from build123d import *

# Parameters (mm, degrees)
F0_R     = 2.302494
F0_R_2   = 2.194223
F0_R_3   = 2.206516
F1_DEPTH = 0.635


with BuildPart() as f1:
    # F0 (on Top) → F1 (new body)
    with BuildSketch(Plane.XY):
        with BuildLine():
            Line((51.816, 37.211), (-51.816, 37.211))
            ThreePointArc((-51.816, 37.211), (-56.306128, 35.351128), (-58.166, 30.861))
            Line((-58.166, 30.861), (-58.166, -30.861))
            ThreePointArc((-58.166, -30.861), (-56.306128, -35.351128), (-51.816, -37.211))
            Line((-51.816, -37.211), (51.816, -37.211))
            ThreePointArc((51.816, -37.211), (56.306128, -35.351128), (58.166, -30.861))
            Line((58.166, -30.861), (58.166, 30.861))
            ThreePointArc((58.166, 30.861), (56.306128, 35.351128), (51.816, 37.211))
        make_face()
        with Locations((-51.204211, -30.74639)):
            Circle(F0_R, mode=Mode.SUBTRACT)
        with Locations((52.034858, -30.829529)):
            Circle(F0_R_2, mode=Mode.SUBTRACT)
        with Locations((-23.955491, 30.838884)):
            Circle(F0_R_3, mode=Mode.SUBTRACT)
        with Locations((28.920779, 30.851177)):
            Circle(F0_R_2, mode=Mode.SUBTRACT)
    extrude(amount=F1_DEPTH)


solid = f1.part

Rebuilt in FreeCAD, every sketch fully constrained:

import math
import FreeCAD as App
import Part
import Sketcher
Q = App.Units.Quantity

doc = App.newDocument("Part")
body = doc.addObject("PartDesign::Body", "Body")

# Sketch on XY plane
sketch1 = body.newObject("Sketcher::SketchObject", "Sketch")
sketch1.AttachmentSupport = (doc.getObject("XY_Plane"), [""])
sketch1.MapMode = "FlatFace"
sketch1.addGeometry([
    Part.LineSegment(App.Vector(51.8, 37.2, 0), App.Vector(-51.8, 37.2, 0)),  # 0
    Part.ArcOfCircle(Part.Circle(App.Vector(-51.8, 30.9, 0), App.Vector(0, 0, 1), 6.4), math.radians(90), math.radians(180)),  # 1
    Part.LineSegment(App.Vector(-58.2, 30.9, 0), App.Vector(-58.2, -30.9, 0)),  # 2
    Part.ArcOfCircle(Part.Circle(App.Vector(-51.8, -30.9, 0), App.Vector(0, 0, 1), 6.4), math.radians(-180), math.radians(-90)),  # 3
    Part.LineSegment(App.Vector(-51.8, -37.2, 0), App.Vector(51.8, -37.2, 0)),  # 4
    Part.ArcOfCircle(Part.Circle(App.Vector(51.8, -30.9, 0), App.Vector(0, 0, 1), 6.4), math.radians(-90), math.radians(0)),  # 5
    Part.LineSegment(App.Vector(58.2, -30.9, 0), App.Vector(58.2, 30.9, 0)),  # 6
    Part.ArcOfCircle(Part.Circle(App.Vector(51.8, 30.9, 0), App.Vector(0, 0, 1), 6.4), math.radians(0), math.radians(90)),  # 7
    Part.Circle(App.Vector(-51.2, -30.7, 0), App.Vector(0, 0, 1), 2.3),  # 8
    Part.Circle(App.Vector(52, -30.8, 0), App.Vector(0, 0, 1), 2.2),  # 9
    Part.Circle(App.Vector(-24, 30.8, 0), App.Vector(0, 0, 1), 2.2),  # 10
    Part.Circle(App.Vector(28.9, 30.9, 0), App.Vector(0, 0, 1), 2.2),  # 11
], False)
sketch1.addConstraint([
    Sketcher.Constraint("Tangent", 0, 2, 1, 1),
    Sketcher.Constraint("Tangent", 1, 2, 2, 1),
    Sketcher.Constraint("Tangent", 2, 2, 3, 1),
    Sketcher.Constraint("Tangent", 3, 2, 4, 1),
    Sketcher.Constraint("Tangent", 4, 2, 5, 1),
    Sketcher.Constraint("Tangent", 5, 2, 6, 1),
    Sketcher.Constraint("Tangent", 6, 2, 7, 1),
    Sketcher.Constraint("Tangent", 7, 2, 0, 1),
    Sketcher.Constraint("Horizontal", 0),
    Sketcher.Constraint("Vertical", 2),
    Sketcher.Constraint("Horizontal", 4),
    Sketcher.Constraint("Vertical", 6),
    Sketcher.Constraint("Equal", 1, 3),
    Sketcher.Constraint("Equal", 3, 5),
    Sketcher.Constraint("Equal", 5, 7),
    Sketcher.Constraint("Equal", 9, 11),
    Sketcher.Constraint("Symmetric", 1, 3, 5, 3, -1, 1),
    Sketcher.Constraint("Radius", 1, Q("0.25 in")),
    Sketcher.Constraint("DistanceX", 0, 2, 0, 1, Q("4.08 in")),
    Sketcher.Constraint("DistanceY", 2, 2, 2, 1, Q("2.43 in")),
    Sketcher.Constraint("Diameter", 8, 4.604988),
    Sketcher.Constraint("Diameter", 9, 4.388446),
    Sketcher.Constraint("Diameter", 10, 4.413032),
    Sketcher.Constraint("DistanceX", 8, 3, -1, 1, 51.204211),
    Sketcher.Constraint("DistanceY", 8, 3, -1, 1, 30.74639),
    Sketcher.Constraint("DistanceY", 9, 3, -1, 1, 30.829529),
    Sketcher.Constraint("DistanceX", 10, 3, -1, 1, 23.955491),
    Sketcher.Constraint("DistanceX", -1, 1, 11, 3, 28.920779),
    Sketcher.Constraint("DistanceX", 5, 3, 9, 3, 0.218858),
    Sketcher.Constraint("DistanceY", -1, 1, 10, 3, 30.838884),
    Sketcher.Constraint("DistanceY", -1, 1, 11, 3, 30.851177),
])
pad1 = body.newObject("PartDesign::Pad", "Pad")
pad1.Profile = sketch1
pad1.Length = Q("0.025 in")

doc.recompute()
